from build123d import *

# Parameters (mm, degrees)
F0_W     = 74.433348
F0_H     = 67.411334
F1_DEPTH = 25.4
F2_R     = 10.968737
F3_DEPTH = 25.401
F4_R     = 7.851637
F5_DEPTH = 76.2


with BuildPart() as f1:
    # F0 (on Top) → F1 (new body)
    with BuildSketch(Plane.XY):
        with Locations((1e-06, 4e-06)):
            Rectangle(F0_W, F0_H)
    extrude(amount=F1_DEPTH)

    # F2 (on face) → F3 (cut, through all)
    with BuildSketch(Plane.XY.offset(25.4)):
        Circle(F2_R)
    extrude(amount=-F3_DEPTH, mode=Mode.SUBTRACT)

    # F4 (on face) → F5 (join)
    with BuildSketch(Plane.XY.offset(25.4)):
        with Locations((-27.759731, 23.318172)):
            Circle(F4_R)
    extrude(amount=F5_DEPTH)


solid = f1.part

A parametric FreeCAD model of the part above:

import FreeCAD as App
import Part
import Sketcher
Q = App.Units.Quantity

doc = App.newDocument("Part")
body = doc.addObject("PartDesign::Body", "Body")

# Sketch on XY plane
sketch1 = body.newObject("Sketcher::SketchObject", "Sketch")
sketch1.AttachmentSupport = (doc.getObject("XY_Plane"), [""])
sketch1.MapMode = "FlatFace"
sketch1.addGeometry([
    Part.LineSegment(App.Vector(-37, 34, 0), App.Vector(-37, -34, 0)),
    Part.LineSegment(App.Vector(-37, -34, 0), App.Vector(37, -34, 0)),
    Part.LineSegment(App.Vector(37, -34, 0), App.Vector(37, 34, 0)),
    Part.LineSegment(App.Vector(37, 34, 0), App.Vector(-37, 34, 0)),
], False)
sketch1.addConstraint([
    Sketcher.Constraint("Coincident", 0, 2, 1, 1),
    Sketcher.Constraint("Coincident", 1, 2, 2, 1),
    Sketcher.Constraint("Coincident", 2, 2, 3, 1),
    Sketcher.Constraint("Coincident", 3, 2, 0, 1),
    Sketcher.Constraint("Vertical", 0),
    Sketcher.Constraint("Horizontal", 1),
    Sketcher.Constraint("Vertical", 2),
    Sketcher.Constraint("Horizontal", 3),
    Sketcher.Constraint("Symmetric", 0, 2, 2, 2, -1, 1),
    Sketcher.Constraint("DistanceX", 1, 1, 1, 2, Q("74.433348 mm")),
    Sketcher.Constraint("DistanceY", 0, 2, 0, 1, Q("67.411334 mm")),
])
pad1 = body.newObject("PartDesign::Pad", "Pad")
pad1.Profile = sketch1
pad1.Length = Q("1 in")

# Sketch on XY plane
sketch2 = body.newObject("Sketcher::SketchObject", "Sketch001")
sketch2.AttachmentSupport = (doc.getObject("XY_Plane"), [""])
sketch2.MapMode = "FlatFace"
sketch2.AttachmentOffset = App.Placement(App.Vector(0, 0, 1 * 25.4), App.Rotation())
sketch2.addGeometry(Part.Circle(App.Vector(0, 0, 0), App.Vector(0, 0, 1), 11), False)
sketch2.addConstraint([
    Sketcher.Constraint("Coincident", 0, 3, -1, 1),
    Sketcher.Constraint("Diameter", 0, Q("21.937474 mm")),
])
pocket1 = body.newObject("PartDesign::Pocket", "Pocket")
pocket1.Profile = sketch2
pocket1.Type = "ThroughAll"

# Sketch on XY plane
sketch3 = body.newObject("Sketcher::SketchObject", "Sketch002")
sketch3.AttachmentSupport = (doc.getObject("XY_Plane"), [""])
sketch3.MapMode = "FlatFace"
sketch3.AttachmentOffset = App.Placement(App.Vector(0, 0, 1 * 25.4), App.Rotation())
sketch3.addGeometry(Part.Circle(App.Vector(-28, 23, 0), App.Vector(0, 0, 1), 8), False)
sketch3.addConstraint([
    Sketcher.Constraint("Diameter", 0, Q("15.703274 mm")),
    Sketcher.Constraint("DistanceX", 0, 3, -1, 1, Q("27.759731 mm")),
    Sketcher.Constraint("DistanceY", -1, 1, 0, 3, Q("23.318172 mm")),
])
pad2 = body.newObject("PartDesign::Pad", "Pad001")
pad2.Profile = sketch3
pad2.Length = Q("3 in")

doc.recompute()
